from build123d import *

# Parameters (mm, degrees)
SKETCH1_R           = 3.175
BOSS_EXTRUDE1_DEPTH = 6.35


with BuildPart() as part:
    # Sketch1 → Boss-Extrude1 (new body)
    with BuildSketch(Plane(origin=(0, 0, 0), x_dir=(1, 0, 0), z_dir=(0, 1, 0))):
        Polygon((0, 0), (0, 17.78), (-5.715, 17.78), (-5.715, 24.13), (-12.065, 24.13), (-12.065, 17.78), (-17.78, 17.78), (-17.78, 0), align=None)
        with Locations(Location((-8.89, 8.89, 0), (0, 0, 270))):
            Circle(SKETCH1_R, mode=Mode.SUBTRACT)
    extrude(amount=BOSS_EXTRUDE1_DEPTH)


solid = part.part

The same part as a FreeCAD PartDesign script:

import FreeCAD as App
import Part
import Sketcher

V = App.Vector
Q = App.Units.Quantity


def add_polygon(sketch, points):
    """Adds a closed chain of lines whose ends are joined by coincident constraints."""
    first, n = sketch.GeometryCount, len(points)
    for a, b in zip(points, points[1:] + points[:1]):
        sketch.addGeometry(Part.LineSegment(App.Vector(*a, 0), App.Vector(*b, 0)), False)
    for i in range(n):
        sketch.addConstraint(Sketcher.Constraint("Coincident", first + i, 2, first + (i + 1) % n, 1))

doc = App.newDocument("Part")
body = doc.addObject("PartDesign::Body", "Body")

sketch1 = doc.addObject("Sketcher::SketchObject", "Sketch")
body.addObject(sketch1)
sketch1.AttachmentSupport = (doc.XZ_Plane, [""])
sketch1.MapMode = "FlatFace"
add_polygon(sketch1, [(0, 0), (0, -17.8), (-5.7, -17.8), (-5.7, -24.1), (-12.1, -24.1), (-12.1, -17.8), (-17.8, -17.8), (-17.8, 0)])
sketch1.addGeometry(Part.Circle(V(-8.9, -8.9, 0), V(0, 0, 1), 3.2), False)
sketch1.addConstraint(Sketcher.Constraint("Vertical", 0))
sketch1.addConstraint(Sketcher.Constraint("Horizontal", 1))
sketch1.addConstraint(Sketcher.Constraint("Vertical", 2))
sketch1.addConstraint(Sketcher.Constraint("Horizontal", 3))
sketch1.addConstraint(Sketcher.Constraint("Vertical", 4))
sketch1.addConstraint(Sketcher.Constraint("Horizontal", 5))
sketch1.addConstraint(Sketcher.Constraint("Vertical", 6))
sketch1.addConstraint(Sketcher.Constraint("Horizontal", 7))
sketch1.addConstraint(Sketcher.Constraint("Coincident", 7, 2, -1, 1))
sketch1.addConstraint(Sketcher.Constraint("Horizontal", 1, 2, 4, 2))
sketch1.addConstraint(Sketcher.Constraint("Equal", 1, 5))
sketch1.addConstraint(Sketcher.Constraint("Equal", 7, 0))
sketch1.addConstraint(Sketcher.Constraint("Equal", 3, 2))
sketch1.addConstraint(Sketcher.Constraint("Diameter", 8, Q("0.25 in")))
sketch1.addConstraint(Sketcher.Constraint("DistanceX", 7, 1, 7, 2, Q("0.7 in")))
sketch1.addConstraint(Sketcher.Constraint("DistanceX", 3, 2, 3, 1, Q("0.25 in")))
sketch1.addConstraint(Sketcher.Constraint("DistanceY", 2, 2, 8, 3, Q("0.6 in")))
sketch1.addConstraint(Sketcher.Constraint("DistanceX", 8, 3, -1, 1, Q("0.35 in")))
pad1 = doc.addObject("PartDesign::Pad", "Pad")
body.addObject(pad1)
pad1.Profile = sketch1
pad1.Length = Q("0.25 in")
pad1.Reversed = True

doc.recompute()
